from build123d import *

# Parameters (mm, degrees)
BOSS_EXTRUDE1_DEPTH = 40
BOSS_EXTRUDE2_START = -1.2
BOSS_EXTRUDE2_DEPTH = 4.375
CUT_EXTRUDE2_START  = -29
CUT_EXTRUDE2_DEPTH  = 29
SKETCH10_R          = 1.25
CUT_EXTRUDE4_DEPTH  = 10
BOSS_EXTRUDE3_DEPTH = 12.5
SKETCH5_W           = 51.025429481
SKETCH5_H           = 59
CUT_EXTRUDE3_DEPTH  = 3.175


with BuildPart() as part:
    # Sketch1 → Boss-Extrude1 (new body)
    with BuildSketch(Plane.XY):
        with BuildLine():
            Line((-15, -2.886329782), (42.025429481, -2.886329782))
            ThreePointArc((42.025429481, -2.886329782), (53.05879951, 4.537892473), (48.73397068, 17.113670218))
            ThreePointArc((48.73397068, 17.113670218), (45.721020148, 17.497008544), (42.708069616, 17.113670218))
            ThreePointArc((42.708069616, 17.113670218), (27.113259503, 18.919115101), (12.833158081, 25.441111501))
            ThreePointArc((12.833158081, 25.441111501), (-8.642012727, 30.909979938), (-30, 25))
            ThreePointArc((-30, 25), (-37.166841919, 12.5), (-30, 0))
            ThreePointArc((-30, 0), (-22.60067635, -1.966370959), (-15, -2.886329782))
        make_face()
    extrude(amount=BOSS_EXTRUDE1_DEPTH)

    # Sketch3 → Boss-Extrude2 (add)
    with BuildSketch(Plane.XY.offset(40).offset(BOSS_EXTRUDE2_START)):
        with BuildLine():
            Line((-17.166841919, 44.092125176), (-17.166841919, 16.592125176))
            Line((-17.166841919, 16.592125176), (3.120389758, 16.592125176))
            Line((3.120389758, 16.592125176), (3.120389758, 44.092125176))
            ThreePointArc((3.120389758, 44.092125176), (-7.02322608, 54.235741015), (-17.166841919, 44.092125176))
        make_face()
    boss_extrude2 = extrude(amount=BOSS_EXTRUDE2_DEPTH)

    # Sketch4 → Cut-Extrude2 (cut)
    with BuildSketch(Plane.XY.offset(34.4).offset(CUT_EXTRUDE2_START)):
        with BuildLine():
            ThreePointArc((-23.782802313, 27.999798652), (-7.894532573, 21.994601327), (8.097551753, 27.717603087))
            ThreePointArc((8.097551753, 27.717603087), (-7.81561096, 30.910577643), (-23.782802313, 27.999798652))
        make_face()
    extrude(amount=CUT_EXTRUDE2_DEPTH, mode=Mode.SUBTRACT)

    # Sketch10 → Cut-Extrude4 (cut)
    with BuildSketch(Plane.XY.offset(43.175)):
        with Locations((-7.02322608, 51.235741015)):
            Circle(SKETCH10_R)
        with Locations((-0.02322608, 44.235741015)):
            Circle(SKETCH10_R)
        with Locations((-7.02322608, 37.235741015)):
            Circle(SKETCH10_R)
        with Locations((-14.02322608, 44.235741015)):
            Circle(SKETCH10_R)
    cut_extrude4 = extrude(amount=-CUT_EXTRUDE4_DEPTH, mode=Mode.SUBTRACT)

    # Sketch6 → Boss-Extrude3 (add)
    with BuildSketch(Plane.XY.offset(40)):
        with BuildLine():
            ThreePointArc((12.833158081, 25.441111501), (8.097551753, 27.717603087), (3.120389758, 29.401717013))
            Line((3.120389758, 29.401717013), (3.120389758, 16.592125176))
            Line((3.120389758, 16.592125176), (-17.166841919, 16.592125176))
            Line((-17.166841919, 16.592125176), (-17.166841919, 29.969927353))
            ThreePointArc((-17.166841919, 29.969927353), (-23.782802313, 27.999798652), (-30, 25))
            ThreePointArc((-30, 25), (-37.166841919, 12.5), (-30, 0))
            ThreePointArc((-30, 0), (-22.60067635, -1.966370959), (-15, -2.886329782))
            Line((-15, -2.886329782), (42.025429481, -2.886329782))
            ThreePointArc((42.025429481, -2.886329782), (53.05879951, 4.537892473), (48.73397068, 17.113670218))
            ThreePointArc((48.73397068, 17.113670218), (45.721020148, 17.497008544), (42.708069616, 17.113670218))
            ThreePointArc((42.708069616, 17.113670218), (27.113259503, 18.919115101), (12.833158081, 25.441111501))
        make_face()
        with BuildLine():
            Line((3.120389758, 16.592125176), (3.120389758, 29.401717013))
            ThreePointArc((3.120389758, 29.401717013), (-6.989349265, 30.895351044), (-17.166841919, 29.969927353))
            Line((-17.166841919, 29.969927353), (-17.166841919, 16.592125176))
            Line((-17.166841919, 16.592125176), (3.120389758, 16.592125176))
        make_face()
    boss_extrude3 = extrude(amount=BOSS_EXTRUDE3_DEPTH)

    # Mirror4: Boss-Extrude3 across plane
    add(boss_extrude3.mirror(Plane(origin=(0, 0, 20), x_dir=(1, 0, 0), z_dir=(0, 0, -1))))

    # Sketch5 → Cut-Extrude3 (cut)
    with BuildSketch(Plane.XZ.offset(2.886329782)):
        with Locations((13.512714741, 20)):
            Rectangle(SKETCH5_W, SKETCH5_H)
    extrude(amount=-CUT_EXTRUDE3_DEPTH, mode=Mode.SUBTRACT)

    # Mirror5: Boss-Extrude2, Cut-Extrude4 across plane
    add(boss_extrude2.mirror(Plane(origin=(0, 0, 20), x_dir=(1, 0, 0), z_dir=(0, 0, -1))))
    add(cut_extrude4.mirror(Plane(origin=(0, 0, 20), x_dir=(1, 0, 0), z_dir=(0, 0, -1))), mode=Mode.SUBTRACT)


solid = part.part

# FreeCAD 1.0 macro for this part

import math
import FreeCAD as App
import Part
import Sketcher
Q = App.Units.Quantity


def add_polygon(sketch, points):
    """Adds a closed chain of lines whose ends are joined by coincident constraints."""
    first, n = sketch.GeometryCount, len(points)
    for a, b in zip(points, points[1:] + points[:1]):
        sketch.addGeometry(Part.LineSegment(App.Vector(*a, 0), App.Vector(*b, 0)), False)
    for i in range(n):
        sketch.addConstraint(Sketcher.Constraint("Coincident", first + i, 2, first + (i + 1) % n, 1))

doc = App.newDocument("Part")
body = doc.addObject("PartDesign::Body", "Body")

# Sketch on XY plane
sketch1 = body.newObject("Sketcher::SketchObject", "Sketch")
sketch1.AttachmentSupport = (doc.getObject("XY_Plane"), [""])
sketch1.MapMode = "FlatFace"
sketch1.addGeometry([
    Part.LineSegment(App.Vector(-15, -3, 0), App.Vector(42, -3, 0)),  # 0
    Part.ArcOfCircle(Part.Circle(App.Vector(43, 8, 0), App.Vector(0, 0, 1), 11), math.radians(-94), math.radians(56)),  # 1
    Part.ArcOfCircle(Part.Circle(App.Vector(46, 5, 0), App.Vector(0, 0, 1), 12), math.radians(75), math.radians(105)),  # 2
    Part.ArcOfCircle(Part.Circle(App.Vector(41, 67, 0), App.Vector(0, 0, 1), 50), math.radians(-124), math.radians(-88)),  # 3
    Part.ArcOfCircle(Part.Circle(App.Vector(-8, -12, 0), App.Vector(0, 0, 1), 43), math.radians(61), math.radians(120)),  # 4
    Part.ArcOfCircle(Part.Circle(App.Vector(-23, 12, 0), App.Vector(0, 0, 1), 14), math.radians(120), math.radians(240)),  # 5
    Part.ArcOfCircle(Part.Circle(App.Vector(-12, 52, 0), App.Vector(0, 0, 1), 55), math.radians(-108.87), math.radians(-92.91)),  # 6
], False)
sketch1.addConstraint([
    Sketcher.Constraint("Coincident", 0, 2, 1, 1),
    Sketcher.Constraint("Coincident", 1, 2, 2, 1),
    Sketcher.Constraint("Coincident", 2, 2, 3, 2),
    Sketcher.Constraint("Coincident", 3, 1, 4, 1),
    Sketcher.Constraint("Tangent", 4, 2, 5, 1),
    Sketcher.Constraint("Coincident", 5, 2, 6, 1),
    Sketcher.Constraint("Coincident", 6, 2, 0, 1),
    Sketcher.Constraint("Horizontal", 0),
    Sketcher.Constraint("PointOnObject", 5, 2, -1),
    Sketcher.Constraint("Horizontal", 1, 2, 2, 2),
    Sketcher.Constraint("Vertical", 1, 3, 2, 2),
    Sketcher.Constraint("Vertical", 4, 2, 5, 2),
    Sketcher.Constraint("DistanceX", 4, 2, -1, 1, Q("30 mm")),
    Sketcher.Constraint("DistanceY", -1, 1, 4, 2, Q("25 mm")),
    Sketcher.Constraint("DistanceX", 6, 2, -1, 1, Q("15 mm")),
    Sketcher.Constraint("DistanceY", 0, 2, 1, 2, Q("20 mm")),
    Sketcher.Constraint("Radius", 1, Q("10.9175 mm")),
    Sketcher.Constraint("Radius", 6, Q("55.007642 mm")),
    Sketcher.Constraint("Radius", 2, Q("12.032216 mm")),
    Sketcher.Constraint("Radius", 3, Q("50.334914 mm")),
    Sketcher.Constraint("Radius", 4, Q("43.155988 mm")),
    Sketcher.Constraint("Radius", 5, Q("14.484317 mm")),
    Sketcher.Constraint("DistanceX", 0, 1, 0, 2, Q("57.025429 mm")),
    Sketcher.Constraint("DistanceX", 1, 3, 1, 2, Q("6.025901 mm")),
    Sketcher.Constraint("DistanceX", -1, 1, 3, 3, Q("40.628561 mm")),
    Sketcher.Constraint("DistanceY", -1, 1, 3, 3, Q("67.40561 mm")),
])
pad1 = body.newObject("PartDesign::Pad", "Pad")
pad1.Profile = sketch1
pad1.Length = 40

# Sketch on XY plane
sketch2 = body.newObject("Sketcher::SketchObject", "Sketch001")
sketch2.AttachmentSupport = (doc.getObject("XY_Plane"), [""])
sketch2.MapMode = "FlatFace"
sketch2.AttachmentOffset = App.Placement(App.Vector(0, 0, 38.8), App.Rotation())
sketch2.addGeometry([
    Part.LineSegment(App.Vector(-17, 44, 0), App.Vector(-17, 17, 0)),
    Part.LineSegment(App.Vector(-17, 17, 0), App.Vector(3, 17, 0)),
    Part.LineSegment(App.Vector(3, 17, 0), App.Vector(3, 44, 0)),
    Part.ArcOfCircle(Part.Circle(App.Vector(-7, 44, 0), App.Vector(0, 0, 1), 10), math.radians(0), math.radians(180)),
], False)
sketch2.addConstraint([
    Sketcher.Constraint("Coincident", 0, 2, 1, 1),
    Sketcher.Constraint("Coincident", 1, 2, 2, 1),
    Sketcher.Constraint("Tangent", 2, 2, 3, 1),
    Sketcher.Constraint("Tangent", 3, 2, 0, 1),
    Sketcher.Constraint("Vertical", 0),
    Sketcher.Constraint("Horizontal", 1),
    Sketcher.Constraint("Vertical", 2),
    Sketcher.Constraint("DistanceY", 0, 2, 0, 1, Q("27.5 mm")),
    Sketcher.Constraint("Radius", 3, Q("10.143616 mm")),
    Sketcher.Constraint("DistanceX", 0, 2, -1, 1, Q("17.166842 mm")),
    Sketcher.Constraint("DistanceY", -1, 1, 3, 3, Q("44.092125 mm")),
])
pad2 = body.newObject("PartDesign::Pad", "Pad001")
pad2.Profile = sketch2
pad2.Length = 4.375

# Sketch on XY plane
sketch3 = body.newObject("Sketcher::SketchObject", "Sketch002")
sketch3.AttachmentSupport = (doc.getObject("XY_Plane"), [""])
sketch3.MapMode = "FlatFace"
sketch3.AttachmentOffset = App.Placement(App.Vector(0, 0, 5.4), App.Rotation())
sketch3.addGeometry([
    Part.ArcOfCircle(Part.Circle(App.Vector(-8, 47, 0), App.Vector(0, 0, 1), 25), math.radians(-131), math.radians(-50)),
    Part.ArcOfCircle(Part.Circle(App.Vector(-8, -12, 0), App.Vector(0, 0, 1), 43), math.radians(68), math.radians(111)),
], False)
sketch3.addConstraint([
    Sketcher.Constraint("Coincident", 0, 1, 1, 2),
    Sketcher.Constraint("Coincident", 1, 1, 0, 2),
    Sketcher.Constraint("Radius", 0, Q("24.597827 mm")),
    Sketcher.Constraint("Radius", 1, Q("43.155988 mm")),
    Sketcher.Constraint("DistanceX", 1, 3, -1, 1, Q("8.1976 mm")),
    Sketcher.Constraint("DistanceY", -1, 1, 0, 1, Q("27.999799 mm")),
    Sketcher.Constraint("DistanceX", 0, 3, -1, 1, Q("7.676808 mm")),
    Sketcher.Constraint("DistanceY", 1, 3, -1, 1, Q("12.24372 mm")),
])
pocket1 = body.newObject("PartDesign::Pocket", "Pocket")
pocket1.Profile = sketch3
pocket1.Length = 29
pocket1.Reversed = True

# Sketch on XY plane
sketch4 = body.newObject("Sketcher::SketchObject", "Sketch003")
sketch4.AttachmentSupport = (doc.getObject("XY_Plane"), [""])
sketch4.MapMode = "FlatFace"
sketch4.AttachmentOffset = App.Placement(App.Vector(0, 0, 43.175), App.Rotation())
sketch4.addGeometry([
    Part.Circle(App.Vector(-7, 51.2, 0), App.Vector(0, 0, 1), 1.2),
    Part.Circle(App.Vector(0, 44.2, 0), App.Vector(0, 0, 1), 1.2),
    Part.Circle(App.Vector(-7, 37.2, 0), App.Vector(0, 0, 1), 1.2),
    Part.Circle(App.Vector(-14, 44.2, 0), App.Vector(0, 0, 1), 1.2),
], False)
sketch4.addConstraint([
    Sketcher.Constraint("Equal", 0, 1),
    Sketcher.Constraint("Equal", 1, 2),
    Sketcher.Constraint("Equal", 2, 3),
    Sketcher.Constraint("Horizontal", 1, 3, 3, 3),
    Sketcher.Constraint("Vertical", 0, 3, 2, 3),
    Sketcher.Constraint("Diameter", 0, Q("2.5 mm")),
    Sketcher.Constraint("DistanceX", 0, 3, 1, 3, Q("7 mm")),
    Sketcher.Constraint("DistanceY", 1, 3, 0, 3, Q("7 mm")),
    Sketcher.Constraint("DistanceY", 2, 3, 1, 3, Q("7 mm")),
    Sketcher.Constraint("DistanceX", 3, 3, 0, 3, Q("7 mm")),
    Sketcher.Constraint("DistanceY", -1, 1, 0, 3, Q("51.235741 mm")),
    Sketcher.Constraint("DistanceX", 0, 3, -1, 1, Q("7.023226 mm")),
])
pocket2 = body.newObject("PartDesign::Pocket", "Pocket001")
pocket2.Profile = sketch4
pocket2.Length = 10

# Sketch on XY plane
sketch5 = body.newObject("Sketcher::SketchObject", "Sketch004")
sketch5.AttachmentSupport = (doc.getObject("XY_Plane"), [""])
sketch5.MapMode = "FlatFace"
sketch5.AttachmentOffset = App.Placement(App.Vector(0, 0, 40), App.Rotation())
sketch5.addGeometry([
    Part.ArcOfCircle(Part.Circle(App.Vector(-8, -12, 0), App.Vector(0, 0, 1), 43), math.radians(60.84), math.radians(74.8)),  # 0
    Part.ArcOfCircle(Part.Circle(App.Vector(-8, -12, 0), App.Vector(0, 0, 1), 43), math.radians(75), math.radians(102)),  # 1
    Part.ArcOfCircle(Part.Circle(App.Vector(-8, -12, 0), App.Vector(0, 0, 1), 43), math.radians(102), math.radians(120.34)),  # 2
    Part.ArcOfCircle(Part.Circle(App.Vector(-23, 12, 0), App.Vector(0, 0, 1), 14), math.radians(120), math.radians(240)),  # 3
    Part.ArcOfCircle(Part.Circle(App.Vector(-12, 52, 0), App.Vector(0, 0, 1), 55), math.radians(-108.87), math.radians(-92.91)),  # 4
    Part.LineSegment(App.Vector(-15, -3, 0), App.Vector(42, -3, 0)),  # 5
    Part.ArcOfCircle(Part.Circle(App.Vector(43, 8, 0), App.Vector(0, 0, 1), 11), math.radians(-94), math.radians(56)),  # 6
    Part.ArcOfCircle(Part.Circle(App.Vector(46, 5, 0), App.Vector(0, 0, 1), 12), math.radians(75), math.radians(105)),  # 7
    Part.ArcOfCircle(Part.Circle(App.Vector(41, 67, 0), App.Vector(0, 0, 1), 50), math.radians(-124), math.radians(-88)),  # 8
], False)
sketch5.addConstraint([
    Sketcher.Constraint("Tangent", 0, 2, 1, 1),
    Sketcher.Constraint("Tangent", 1, 2, 2, 1),
    Sketcher.Constraint("Tangent", 2, 2, 3, 1),
    Sketcher.Constraint("Coincident", 3, 2, 4, 1),
    Sketcher.Constraint("Coincident", 4, 2, 5, 1),
    Sketcher.Constraint("Coincident", 5, 2, 6, 1),
    Sketcher.Constraint("Coincident", 6, 2, 7, 1),
    Sketcher.Constraint("Coincident", 7, 2, 8, 2),
    Sketcher.Constraint("Coincident", 8, 1, 0, 1),
    Sketcher.Constraint("Horizontal", 5),
    Sketcher.Constraint("Coincident", 2, 3, 0, 3),
    Sketcher.Constraint("PointOnObject", 3, 2, -1),
    Sketcher.Constraint("Horizontal", 6, 2, 7, 2),
    Sketcher.Constraint("Vertical", 2, 2, 3, 2),
    Sketcher.Constraint("Vertical", 6, 3, 7, 2),
    Sketcher.Constraint("DistanceX", 2, 2, -1, 1, Q("30 mm")),
    Sketcher.Constraint("DistanceY", -1, 1, 2, 2, Q("25 mm")),
    Sketcher.Constraint("DistanceX", 4, 2, -1, 1, Q("15 mm")),
    Sketcher.Constraint("DistanceY", 5, 2, 6, 2, Q("20 mm")),
    Sketcher.Constraint("DistanceX", 1, 2, 8, 1, Q("30 mm")),
    Sketcher.Constraint("Radius", 6, Q("10.9175 mm")),
    Sketcher.Constraint("Radius", 0, Q("43.155988 mm")),
    Sketcher.Constraint("Radius", 4, Q("55.007642 mm")),
    Sketcher.Constraint("Radius", 3, Q("14.484317 mm")),
    Sketcher.Constraint("Radius", 7, Q("12.032216 mm")),
    Sketcher.Constraint("Radius", 8, Q("50.334914 mm")),
    Sketcher.Constraint("DistanceX", 5, 1, 5, 2, Q("57.025429 mm")),
    Sketcher.Constraint("DistanceX", 6, 3, 6, 2, Q("6.025901 mm")),
    Sketcher.Constraint("DistanceX", -1, 1, 8, 3, Q("40.628561 mm")),
    Sketcher.Constraint("DistanceY", -1, 1, 8, 3, Q("67.40561 mm")),
    Sketcher.Constraint("DistanceX", -1, 1, 0, 2, Q("3.12039 mm")),
])
pad3 = body.newObject("PartDesign::Pad", "Pad002")
pad3.Profile = sketch5
pad3.Length = 12.5
doc.recompute()

datumplane = body.newObject("PartDesign::Plane", "DatumPlane")
datumplane.AttachmentSupport = (doc.getObject("XY_Plane"), [""])
datumplane.MapMode = "FlatFace"
datumplane.AttachmentOffset = App.Placement(App.Vector(0, 0, 20), App.Rotation())
mirrored = body.newObject("PartDesign::Mirrored", "Mirrored")
mirrored.Originals = [pad3]
mirrored.MirrorPlane = (datumplane, [""])
body.Tip = mirrored

# Sketch on XZ plane
sketch6 = body.newObject("Sketcher::SketchObject", "Sketch005")
sketch6.AttachmentSupport = (doc.getObject("XZ_Plane"), [""])
sketch6.MapMode = "FlatFace"
sketch6.AttachmentOffset = App.Placement(App.Vector(0, 0, 2.88633), App.Rotation())
add_polygon(sketch6, [(-12, 50), (-12, -10), (39, -10), (39, 50)])  # lines 0-3
sketch6.addConstraint([
    Sketcher.Constraint("Vertical", 0),
    Sketcher.Constraint("Horizontal", 1),
    Sketcher.Constraint("Vertical", 2),
    Sketcher.Constraint("Horizontal", 3),
    Sketcher.Constraint("DistanceY", 0, 2, 0, 1, Q("59 mm")),
    Sketcher.Constraint("DistanceX", 0, 2, -1, 1, Q("12 mm")),
    Sketcher.Constraint("DistanceY", 0, 2, -1, 1, Q("9.5 mm")),
    Sketcher.Constraint("DistanceX", 1, 1, 1, 2, Q("51.025429 mm")),
])
pocket3 = body.newObject("PartDesign::Pocket", "Pocket002")
pocket3.Profile = sketch6
pocket3.Length = 3.175
doc.recompute()

datumplane2 = body.newObject("PartDesign::Plane", "DatumPlane001")
datumplane2.AttachmentSupport = (doc.getObject("XY_Plane"), [""])
datumplane2.MapMode = "FlatFace"
datumplane2.AttachmentOffset = App.Placement(App.Vector(0, 0, 20), App.Rotation())
mirrored2 = body.newObject("PartDesign::Mirrored", "Mirrored001")
mirrored2.Originals = [pad2, pocket2]
mirrored2.MirrorPlane = (datumplane2, [""])
body.Tip = mirrored2

doc.recompute()
